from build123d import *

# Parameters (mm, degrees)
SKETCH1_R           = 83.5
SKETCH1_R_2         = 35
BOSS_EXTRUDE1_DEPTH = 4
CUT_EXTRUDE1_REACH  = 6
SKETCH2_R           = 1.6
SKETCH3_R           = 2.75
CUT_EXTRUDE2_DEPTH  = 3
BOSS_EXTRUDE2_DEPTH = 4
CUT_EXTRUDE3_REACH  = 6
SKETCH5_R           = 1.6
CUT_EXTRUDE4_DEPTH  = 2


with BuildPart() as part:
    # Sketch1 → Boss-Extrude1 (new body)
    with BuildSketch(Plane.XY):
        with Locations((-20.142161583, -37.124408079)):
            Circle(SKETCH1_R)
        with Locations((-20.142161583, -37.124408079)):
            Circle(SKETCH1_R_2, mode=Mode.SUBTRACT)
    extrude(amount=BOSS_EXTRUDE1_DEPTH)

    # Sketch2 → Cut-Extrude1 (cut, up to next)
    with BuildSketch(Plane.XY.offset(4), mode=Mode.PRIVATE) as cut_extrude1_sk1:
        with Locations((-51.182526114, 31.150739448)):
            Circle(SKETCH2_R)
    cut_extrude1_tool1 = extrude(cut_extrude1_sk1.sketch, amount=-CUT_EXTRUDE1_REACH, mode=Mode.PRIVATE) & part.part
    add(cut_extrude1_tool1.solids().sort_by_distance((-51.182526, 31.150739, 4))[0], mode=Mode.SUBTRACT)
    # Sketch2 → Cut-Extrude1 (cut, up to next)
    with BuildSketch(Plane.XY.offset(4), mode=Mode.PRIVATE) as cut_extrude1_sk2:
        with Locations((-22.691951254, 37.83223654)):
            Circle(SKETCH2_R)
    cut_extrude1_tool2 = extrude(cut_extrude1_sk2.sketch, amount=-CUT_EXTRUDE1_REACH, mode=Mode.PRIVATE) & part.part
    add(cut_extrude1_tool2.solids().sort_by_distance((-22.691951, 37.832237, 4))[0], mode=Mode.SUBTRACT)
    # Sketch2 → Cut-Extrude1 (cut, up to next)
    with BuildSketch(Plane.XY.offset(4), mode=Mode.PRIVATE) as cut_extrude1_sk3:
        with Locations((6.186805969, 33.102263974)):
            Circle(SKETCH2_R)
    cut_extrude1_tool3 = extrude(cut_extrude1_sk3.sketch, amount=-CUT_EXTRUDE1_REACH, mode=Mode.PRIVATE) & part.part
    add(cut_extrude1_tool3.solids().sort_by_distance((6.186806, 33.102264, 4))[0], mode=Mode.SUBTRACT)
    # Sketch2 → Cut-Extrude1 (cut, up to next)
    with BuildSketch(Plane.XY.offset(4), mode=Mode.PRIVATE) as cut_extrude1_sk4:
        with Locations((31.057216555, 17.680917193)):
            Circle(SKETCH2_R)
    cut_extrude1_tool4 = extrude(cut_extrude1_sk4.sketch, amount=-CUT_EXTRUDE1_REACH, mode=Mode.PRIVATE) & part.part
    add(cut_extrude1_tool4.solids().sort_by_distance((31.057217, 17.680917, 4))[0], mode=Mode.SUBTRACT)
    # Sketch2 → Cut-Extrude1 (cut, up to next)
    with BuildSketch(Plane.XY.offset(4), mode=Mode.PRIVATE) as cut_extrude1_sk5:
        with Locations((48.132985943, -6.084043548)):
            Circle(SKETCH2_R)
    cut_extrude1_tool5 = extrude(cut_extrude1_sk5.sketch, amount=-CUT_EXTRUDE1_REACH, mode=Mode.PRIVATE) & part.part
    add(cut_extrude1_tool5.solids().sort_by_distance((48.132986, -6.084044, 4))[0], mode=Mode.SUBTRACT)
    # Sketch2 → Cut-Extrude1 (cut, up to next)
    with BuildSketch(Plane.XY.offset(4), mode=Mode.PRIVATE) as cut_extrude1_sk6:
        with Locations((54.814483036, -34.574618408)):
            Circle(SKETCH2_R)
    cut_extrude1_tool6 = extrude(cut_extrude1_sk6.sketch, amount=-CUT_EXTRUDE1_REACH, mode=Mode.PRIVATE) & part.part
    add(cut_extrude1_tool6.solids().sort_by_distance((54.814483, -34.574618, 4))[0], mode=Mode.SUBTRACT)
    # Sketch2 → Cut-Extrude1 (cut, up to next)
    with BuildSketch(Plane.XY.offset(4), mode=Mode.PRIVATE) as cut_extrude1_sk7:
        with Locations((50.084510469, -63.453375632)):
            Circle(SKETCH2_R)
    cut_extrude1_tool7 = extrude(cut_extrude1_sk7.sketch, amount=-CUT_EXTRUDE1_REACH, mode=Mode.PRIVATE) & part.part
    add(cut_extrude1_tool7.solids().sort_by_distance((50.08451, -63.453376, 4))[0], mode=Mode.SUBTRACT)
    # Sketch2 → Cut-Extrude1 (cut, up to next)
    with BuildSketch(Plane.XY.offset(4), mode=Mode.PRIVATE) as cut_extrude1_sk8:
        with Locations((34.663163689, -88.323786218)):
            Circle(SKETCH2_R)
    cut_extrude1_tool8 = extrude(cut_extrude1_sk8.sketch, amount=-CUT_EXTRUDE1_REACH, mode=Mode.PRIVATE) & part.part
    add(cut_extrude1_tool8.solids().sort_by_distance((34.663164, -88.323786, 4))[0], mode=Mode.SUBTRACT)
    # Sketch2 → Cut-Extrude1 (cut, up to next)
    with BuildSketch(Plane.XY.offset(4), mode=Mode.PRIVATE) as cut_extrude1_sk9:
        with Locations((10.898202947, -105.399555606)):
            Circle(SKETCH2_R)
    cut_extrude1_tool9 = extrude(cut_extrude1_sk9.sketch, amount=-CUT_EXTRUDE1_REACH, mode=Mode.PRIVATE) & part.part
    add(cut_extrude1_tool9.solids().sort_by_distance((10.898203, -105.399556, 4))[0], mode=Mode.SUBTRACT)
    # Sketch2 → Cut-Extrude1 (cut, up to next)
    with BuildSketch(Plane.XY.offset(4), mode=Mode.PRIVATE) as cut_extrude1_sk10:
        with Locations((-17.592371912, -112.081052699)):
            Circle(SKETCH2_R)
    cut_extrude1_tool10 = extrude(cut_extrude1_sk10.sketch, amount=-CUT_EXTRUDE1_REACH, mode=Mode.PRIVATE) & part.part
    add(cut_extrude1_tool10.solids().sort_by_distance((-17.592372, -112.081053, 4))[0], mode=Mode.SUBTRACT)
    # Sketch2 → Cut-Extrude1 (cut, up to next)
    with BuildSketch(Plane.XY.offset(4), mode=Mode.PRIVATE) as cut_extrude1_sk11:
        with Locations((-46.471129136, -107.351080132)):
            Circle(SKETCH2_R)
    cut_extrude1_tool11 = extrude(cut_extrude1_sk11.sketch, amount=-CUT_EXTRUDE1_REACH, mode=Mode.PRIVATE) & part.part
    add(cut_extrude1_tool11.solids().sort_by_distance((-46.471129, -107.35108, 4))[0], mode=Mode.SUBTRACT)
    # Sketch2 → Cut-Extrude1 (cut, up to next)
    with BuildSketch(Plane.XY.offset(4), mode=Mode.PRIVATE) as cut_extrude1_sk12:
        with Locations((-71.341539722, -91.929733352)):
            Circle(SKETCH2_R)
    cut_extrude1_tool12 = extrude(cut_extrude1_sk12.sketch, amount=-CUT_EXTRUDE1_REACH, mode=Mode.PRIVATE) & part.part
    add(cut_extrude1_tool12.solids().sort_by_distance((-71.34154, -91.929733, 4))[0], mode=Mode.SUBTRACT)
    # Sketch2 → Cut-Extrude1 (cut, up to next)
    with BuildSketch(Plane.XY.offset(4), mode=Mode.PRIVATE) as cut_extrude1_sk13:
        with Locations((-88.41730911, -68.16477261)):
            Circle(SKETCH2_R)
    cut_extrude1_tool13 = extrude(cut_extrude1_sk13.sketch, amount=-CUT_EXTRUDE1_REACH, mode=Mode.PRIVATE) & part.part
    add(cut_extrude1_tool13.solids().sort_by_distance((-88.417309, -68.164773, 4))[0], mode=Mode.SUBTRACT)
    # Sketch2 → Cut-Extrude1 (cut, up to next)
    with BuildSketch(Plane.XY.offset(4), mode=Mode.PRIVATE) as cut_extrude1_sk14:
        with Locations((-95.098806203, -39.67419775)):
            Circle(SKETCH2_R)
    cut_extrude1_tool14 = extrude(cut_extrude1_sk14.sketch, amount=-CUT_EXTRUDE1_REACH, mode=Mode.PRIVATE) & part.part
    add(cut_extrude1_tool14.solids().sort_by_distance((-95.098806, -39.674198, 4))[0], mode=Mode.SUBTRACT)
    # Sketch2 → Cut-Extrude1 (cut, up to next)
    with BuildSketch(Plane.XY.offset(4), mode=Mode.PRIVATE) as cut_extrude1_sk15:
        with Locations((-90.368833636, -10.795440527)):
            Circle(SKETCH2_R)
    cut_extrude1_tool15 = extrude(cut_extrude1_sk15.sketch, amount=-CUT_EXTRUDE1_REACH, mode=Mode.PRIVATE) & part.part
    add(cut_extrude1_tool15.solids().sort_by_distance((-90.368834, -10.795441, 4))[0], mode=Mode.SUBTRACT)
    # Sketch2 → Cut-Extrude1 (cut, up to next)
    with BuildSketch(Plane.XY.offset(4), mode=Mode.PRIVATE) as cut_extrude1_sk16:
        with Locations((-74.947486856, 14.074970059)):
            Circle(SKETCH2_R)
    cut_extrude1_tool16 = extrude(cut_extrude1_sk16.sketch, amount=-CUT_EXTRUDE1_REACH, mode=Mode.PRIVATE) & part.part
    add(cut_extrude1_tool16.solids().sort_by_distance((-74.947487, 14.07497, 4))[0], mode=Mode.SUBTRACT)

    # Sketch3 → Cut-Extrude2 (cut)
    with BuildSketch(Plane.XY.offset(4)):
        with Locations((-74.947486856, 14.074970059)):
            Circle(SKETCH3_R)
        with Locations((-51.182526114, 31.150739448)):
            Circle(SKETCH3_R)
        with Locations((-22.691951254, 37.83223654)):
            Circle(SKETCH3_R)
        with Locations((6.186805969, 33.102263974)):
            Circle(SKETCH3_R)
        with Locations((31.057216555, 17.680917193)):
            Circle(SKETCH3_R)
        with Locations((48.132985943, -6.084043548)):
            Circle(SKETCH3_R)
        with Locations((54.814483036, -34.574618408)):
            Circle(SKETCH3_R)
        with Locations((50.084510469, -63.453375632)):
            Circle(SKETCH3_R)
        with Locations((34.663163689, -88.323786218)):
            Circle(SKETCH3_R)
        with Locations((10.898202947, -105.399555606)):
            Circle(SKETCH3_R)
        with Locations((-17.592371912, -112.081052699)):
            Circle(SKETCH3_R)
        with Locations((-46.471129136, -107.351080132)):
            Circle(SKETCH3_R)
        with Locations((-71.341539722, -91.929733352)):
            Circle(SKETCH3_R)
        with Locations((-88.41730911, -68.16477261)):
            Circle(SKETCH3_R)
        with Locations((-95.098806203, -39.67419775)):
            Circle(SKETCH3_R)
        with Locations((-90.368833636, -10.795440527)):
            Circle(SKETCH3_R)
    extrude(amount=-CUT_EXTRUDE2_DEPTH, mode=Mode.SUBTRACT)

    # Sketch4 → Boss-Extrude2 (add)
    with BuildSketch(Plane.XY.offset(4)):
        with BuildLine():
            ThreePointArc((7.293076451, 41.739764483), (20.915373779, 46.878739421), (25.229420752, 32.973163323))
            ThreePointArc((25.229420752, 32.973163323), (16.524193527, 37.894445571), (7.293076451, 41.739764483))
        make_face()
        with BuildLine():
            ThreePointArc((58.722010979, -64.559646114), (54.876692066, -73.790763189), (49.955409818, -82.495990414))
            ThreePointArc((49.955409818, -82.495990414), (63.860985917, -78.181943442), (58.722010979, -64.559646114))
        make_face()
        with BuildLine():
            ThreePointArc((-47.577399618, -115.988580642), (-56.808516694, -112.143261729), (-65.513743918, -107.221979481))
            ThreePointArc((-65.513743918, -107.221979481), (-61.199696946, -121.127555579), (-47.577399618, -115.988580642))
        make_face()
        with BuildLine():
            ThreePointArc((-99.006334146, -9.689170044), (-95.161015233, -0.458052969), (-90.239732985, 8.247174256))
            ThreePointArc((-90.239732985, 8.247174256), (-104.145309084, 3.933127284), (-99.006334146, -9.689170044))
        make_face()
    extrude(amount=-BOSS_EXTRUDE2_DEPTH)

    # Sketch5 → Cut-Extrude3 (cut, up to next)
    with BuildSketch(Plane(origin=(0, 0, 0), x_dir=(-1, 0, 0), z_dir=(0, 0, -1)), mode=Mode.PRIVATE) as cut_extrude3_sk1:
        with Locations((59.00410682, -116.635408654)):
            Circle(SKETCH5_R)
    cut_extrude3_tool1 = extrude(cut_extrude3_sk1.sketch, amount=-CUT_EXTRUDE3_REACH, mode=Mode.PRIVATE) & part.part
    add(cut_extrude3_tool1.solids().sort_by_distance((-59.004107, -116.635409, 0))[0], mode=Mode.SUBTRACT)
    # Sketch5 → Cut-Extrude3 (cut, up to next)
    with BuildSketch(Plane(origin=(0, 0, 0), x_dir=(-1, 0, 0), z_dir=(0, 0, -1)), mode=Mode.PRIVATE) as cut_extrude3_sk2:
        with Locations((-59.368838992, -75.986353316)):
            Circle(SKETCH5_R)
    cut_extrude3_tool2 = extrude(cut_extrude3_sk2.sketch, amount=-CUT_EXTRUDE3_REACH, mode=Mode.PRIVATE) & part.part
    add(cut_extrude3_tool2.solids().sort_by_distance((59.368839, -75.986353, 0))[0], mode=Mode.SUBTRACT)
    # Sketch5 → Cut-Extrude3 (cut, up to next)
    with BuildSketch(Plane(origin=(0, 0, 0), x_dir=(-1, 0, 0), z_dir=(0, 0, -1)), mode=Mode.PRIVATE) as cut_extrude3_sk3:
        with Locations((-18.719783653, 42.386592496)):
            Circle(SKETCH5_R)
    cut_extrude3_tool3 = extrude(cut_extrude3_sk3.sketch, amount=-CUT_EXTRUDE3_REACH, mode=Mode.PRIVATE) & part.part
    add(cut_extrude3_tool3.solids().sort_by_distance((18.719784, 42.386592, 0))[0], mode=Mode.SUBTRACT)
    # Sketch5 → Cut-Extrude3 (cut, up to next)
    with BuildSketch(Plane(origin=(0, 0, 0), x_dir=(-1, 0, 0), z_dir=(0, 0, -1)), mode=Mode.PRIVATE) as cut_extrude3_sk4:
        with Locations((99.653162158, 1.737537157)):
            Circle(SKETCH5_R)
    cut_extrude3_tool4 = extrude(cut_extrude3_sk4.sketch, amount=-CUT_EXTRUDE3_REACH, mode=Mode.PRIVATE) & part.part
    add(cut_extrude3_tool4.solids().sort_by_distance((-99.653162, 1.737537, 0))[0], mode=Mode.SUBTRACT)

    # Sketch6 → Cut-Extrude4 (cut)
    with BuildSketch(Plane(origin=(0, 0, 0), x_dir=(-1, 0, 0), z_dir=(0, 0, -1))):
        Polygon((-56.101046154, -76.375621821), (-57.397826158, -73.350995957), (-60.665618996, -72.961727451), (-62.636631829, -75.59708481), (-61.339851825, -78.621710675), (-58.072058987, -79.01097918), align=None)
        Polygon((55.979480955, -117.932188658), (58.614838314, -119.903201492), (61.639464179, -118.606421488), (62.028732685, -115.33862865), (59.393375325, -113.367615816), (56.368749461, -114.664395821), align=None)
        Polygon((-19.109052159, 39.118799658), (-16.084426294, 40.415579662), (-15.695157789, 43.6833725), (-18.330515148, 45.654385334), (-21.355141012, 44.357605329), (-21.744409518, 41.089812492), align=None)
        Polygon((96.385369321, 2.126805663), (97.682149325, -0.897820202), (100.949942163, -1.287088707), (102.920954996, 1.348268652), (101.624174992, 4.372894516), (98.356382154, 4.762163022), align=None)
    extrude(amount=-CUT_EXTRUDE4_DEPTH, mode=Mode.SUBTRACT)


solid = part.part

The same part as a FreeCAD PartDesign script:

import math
import FreeCAD as App
import Part
import Sketcher

V = App.Vector

doc = App.newDocument("Part")
params = doc.addObject("Spreadsheet::Sheet", "Params")
for row, (alias, value) in enumerate([
    ("sketch1_diameter", "167 mm"),
    ("sketch1_diameter2", "70 mm"),
    ("pad1_length", "4 mm"),
    ("sketch2_diameter", "3.2 mm"),
    ("sketch3_diameter", "3.2 mm"),
    ("sketch4_diameter", "3.2 mm"),
    ("sketch5_diameter", "3.2 mm"),
    ("sketch6_diameter", "3.2 mm"),
    ("sketch7_diameter", "3.2 mm"),
    ("sketch8_diameter", "3.2 mm"),
    ("sketch9_diameter", "3.2 mm"),
    ("sketch10_diameter", "3.2 mm"),
    ("sketch11_diameter", "3.2 mm"),
    ("sketch12_diameter", "3.2 mm"),
    ("sketch13_diameter", "3.2 mm"),
    ("sketch14_diameter", "3.2 mm"),
    ("sketch15_diameter", "3.2 mm"),
    ("sketch16_diameter", "3.2 mm"),
    ("sketch17_diameter", "3.2 mm"),
    ("sketch18_diameter", "5.5 mm"),
    ("pocket17_length", "3 mm"),
    ("sketch19_radius", "10 mm"),
    ("sketch19_radius2", "83.5 mm"),
    ("pad2_length", "4 mm"),
    ("sketch20_diameter", "3.2 mm"),
    ("sketch21_diameter", "3.2 mm"),
    ("sketch22_diameter", "3.2 mm"),
    ("sketch23_diameter", "3.2 mm"),
    ("pocket22_length", "2 mm"),
], start=1):
    params.set(f"A{row}", alias)
    params.set(f"B{row}", "=" + value)
    params.setAlias(f"B{row}", alias)

body = doc.addObject("PartDesign::Body", "Body")

# Sketch on XY plane
sketch1 = body.newObject("Sketcher::SketchObject", "Sketch")
sketch1.AttachmentSupport = (doc.getObject("XY_Plane"), [""])
sketch1.MapMode = "FlatFace"
sketch1.addGeometry([
    Part.Circle(V(-20, -37, 0), V(0, 0, 1), 84),
    Part.Circle(V(-20, -37, 0), V(0, 0, 1), 35),
], False)
sketch1.addConstraint([
    Sketcher.Constraint("Coincident", 1, 3, 0, 3),
    Sketcher.Constraint("Diameter", 0, 167.0),
    Sketcher.Constraint("Diameter", 1, 70.0),
    Sketcher.Constraint("DistanceX", 0, 3, -1, 1, 20.142162),
    Sketcher.Constraint("DistanceY", 0, 3, -1, 1, 37.124408),
])
sketch1.setExpression("Constraints[1]", "Params.sketch1_diameter")
sketch1.setExpression("Constraints[2]", "Params.sketch1_diameter2")
pad1 = body.newObject("PartDesign::Pad", "Pad")
pad1.Profile = sketch1
pad1.setExpression("Length", "Params.pad1_length")

# Sketch on XY plane
sketch2 = body.newObject("Sketcher::SketchObject", "Sketch001")
sketch2.AttachmentSupport = (doc.getObject("XY_Plane"), [""])
sketch2.MapMode = "FlatFace"
sketch2.AttachmentOffset = App.Placement(V(0, 0, 4), App.Rotation())
sketch2.addGeometry(Part.Circle(V(-51.2, 31.2, 0), V(0, 0, 1), 1.6), False)
sketch2.addConstraint([
    Sketcher.Constraint("Diameter", 0, 3.2),
    Sketcher.Constraint("DistanceY", -1, 1, 0, 3, 31.150739),
    Sketcher.Constraint("DistanceX", 0, 3, -1, 1, 51.182526),
])
sketch2.setExpression("Constraints[0]", "Params.sketch2_diameter")
pocket1 = body.newObject("PartDesign::Pocket", "Pocket")
pocket1.Profile = sketch2
pocket1.Type = "UpToFirst"

# Sketch on XY plane
sketch3 = body.newObject("Sketcher::SketchObject", "Sketch002")
sketch3.AttachmentSupport = (doc.getObject("XY_Plane"), [""])
sketch3.MapMode = "FlatFace"
sketch3.AttachmentOffset = App.Placement(V(0, 0, 4), App.Rotation())
sketch3.addGeometry(Part.Circle(V(-22.7, 37.8, 0), V(0, 0, 1), 1.6), False)
sketch3.addConstraint([
    Sketcher.Constraint("Diameter", 0, 3.2),
    Sketcher.Constraint("DistanceX", 0, 3, -1, 1, 22.691951),
    Sketcher.Constraint("DistanceY", -1, 1, 0, 3, 37.832237),
])
sketch3.setExpression("Constraints[0]", "Params.sketch3_diameter")
pocket2 = body.newObject("PartDesign::Pocket", "Pocket001")
pocket2.Profile = sketch3
pocket2.Type = "UpToFirst"

# Sketch on XY plane
sketch4 = body.newObject("Sketcher::SketchObject", "Sketch003")
sketch4.AttachmentSupport = (doc.getObject("XY_Plane"), [""])
sketch4.MapMode = "FlatFace"
sketch4.AttachmentOffset = App.Placement(V(0, 0, 4), App.Rotation())
sketch4.addGeometry(Part.Circle(V(6.2, 33.1, 0), V(0, 0, 1), 1.6), False)
sketch4.addConstraint([
    Sketcher.Constraint("Diameter", 0, 3.2),
    Sketcher.Constraint("DistanceX", -1, 1, 0, 3, 6.186806),
    Sketcher.Constraint("DistanceY", -1, 1, 0, 3, 33.102264),
])
sketch4.setExpression("Constraints[0]", "Params.sketch4_diameter")
pocket3 = body.newObject("PartDesign::Pocket", "Pocket002")
pocket3.Profile = sketch4
pocket3.Type = "UpToFirst"

# Sketch on XY plane
sketch5 = body.newObject("Sketcher::SketchObject", "Sketch004")
sketch5.AttachmentSupport = (doc.getObject("XY_Plane"), [""])
sketch5.MapMode = "FlatFace"
sketch5.AttachmentOffset = App.Placement(V(0, 0, 4), App.Rotation())
sketch5.addGeometry(Part.Circle(V(31.1, 17.7, 0), V(0, 0, 1), 1.6), False)
sketch5.addConstraint([
    Sketcher.Constraint("Diameter", 0, 3.2),
    Sketcher.Constraint("DistanceX", -1, 1, 0, 3, 31.057217),
    Sketcher.Constraint("DistanceY", -1, 1, 0, 3, 17.680917),
])
sketch5.setExpression("Constraints[0]", "Params.sketch5_diameter")
pocket4 = body.newObject("PartDesign::Pocket", "Pocket003")
pocket4.Profile = sketch5
pocket4.Type = "UpToFirst"

# Sketch on XY plane
sketch6 = body.newObject("Sketcher::SketchObject", "Sketch005")
sketch6.AttachmentSupport = (doc.getObject("XY_Plane"), [""])
sketch6.MapMode = "FlatFace"
sketch6.AttachmentOffset = App.Placement(V(0, 0, 4), App.Rotation())
sketch6.addGeometry(Part.Circle(V(48.1, -6.1, 0), V(0, 0, 1), 1.6), False)
sketch6.addConstraint([
    Sketcher.Constraint("Diameter", 0, 3.2),
    Sketcher.Constraint("DistanceX", -1, 1, 0, 3, 48.132986),
    Sketcher.Constraint("DistanceY", 0, 3, -1, 1, 6.084044),
])
sketch6.setExpression("Constraints[0]", "Params.sketch6_diameter")
pocket5 = body.newObject("PartDesign::Pocket", "Pocket004")
pocket5.Profile = sketch6
pocket5.Type = "UpToFirst"

# Sketch on XY plane
sketch7 = body.newObject("Sketcher::SketchObject", "Sketch006")
sketch7.AttachmentSupport = (doc.getObject("XY_Plane"), [""])
sketch7.MapMode = "FlatFace"
sketch7.AttachmentOffset = App.Placement(V(0, 0, 4), App.Rotation())
sketch7.addGeometry(Part.Circle(V(54.8, -34.6, 0), V(0, 0, 1), 1.6), False)
sketch7.addConstraint([
    Sketcher.Constraint("Diameter", 0, 3.2),
    Sketcher.Constraint("DistanceY", 0, 3, -1, 1, 34.574618),
    Sketcher.Constraint("DistanceX", -1, 1, 0, 3, 54.814483),
])
sketch7.setExpression("Constraints[0]", "Params.sketch7_diameter")
pocket6 = body.newObject("PartDesign::Pocket", "Pocket005")
pocket6.Profile = sketch7
pocket6.Type = "UpToFirst"

# Sketch on XY plane
sketch8 = body.newObject("Sketcher::SketchObject", "Sketch007")
sketch8.AttachmentSupport = (doc.getObject("XY_Plane"), [""])
sketch8.MapMode = "FlatFace"
sketch8.AttachmentOffset = App.Placement(V(0, 0, 4), App.Rotation())
sketch8.addGeometry(Part.Circle(V(50.1, -63.5, 0), V(0, 0, 1), 1.6), False)
sketch8.addConstraint([
    Sketcher.Constraint("Diameter", 0, 3.2),
    Sketcher.Constraint("DistanceX", -1, 1, 0, 3, 50.08451),
    Sketcher.Constraint("DistanceY", 0, 3, -1, 1, 63.453376),
])
sketch8.setExpression("Constraints[0]", "Params.sketch8_diameter")
pocket7 = body.newObject("PartDesign::Pocket", "Pocket006")
pocket7.Profile = sketch8
pocket7.Type = "UpToFirst"

# Sketch on XY plane
sketch9 = body.newObject("Sketcher::SketchObject", "Sketch008")
sketch9.AttachmentSupport = (doc.getObject("XY_Plane"), [""])
sketch9.MapMode = "FlatFace"
sketch9.AttachmentOffset = App.Placement(V(0, 0, 4), App.Rotation())
sketch9.addGeometry(Part.Circle(V(34.7, -88.3, 0), V(0, 0, 1), 1.6), False)
sketch9.addConstraint([
    Sketcher.Constraint("Diameter", 0, 3.2),
    Sketcher.Constraint("DistanceX", -1, 1, 0, 3, 34.663164),
    Sketcher.Constraint("DistanceY", 0, 3, -1, 1, 88.323786),
])
sketch9.setExpression("Constraints[0]", "Params.sketch9_diameter")
pocket8 = body.newObject("PartDesign::Pocket", "Pocket007")
pocket8.Profile = sketch9
pocket8.Type = "UpToFirst"

# Sketch on XY plane
sketch10 = body.newObject("Sketcher::SketchObject", "Sketch009")
sketch10.AttachmentSupport = (doc.getObject("XY_Plane"), [""])
sketch10.MapMode = "FlatFace"
sketch10.AttachmentOffset = App.Placement(V(0, 0, 4), App.Rotation())
sketch10.addGeometry(Part.Circle(V(10.9, -105.4, 0), V(0, 0, 1), 1.6), False)
sketch10.addConstraint([
    Sketcher.Constraint("Diameter", 0, 3.2),
    Sketcher.Constraint("DistanceX", -1, 1, 0, 3, 10.898203),
    Sketcher.Constraint("DistanceY", 0, 3, -1, 1, 105.399556),
])
sketch10.setExpression("Constraints[0]", "Params.sketch10_diameter")
pocket9 = body.newObject("PartDesign::Pocket", "Pocket008")
pocket9.Profile = sketch10
pocket9.Type = "UpToFirst"

# Sketch on XY plane
sketch11 = body.newObject("Sketcher::SketchObject", "Sketch010")
sketch11.AttachmentSupport = (doc.getObject("XY_Plane"), [""])
sketch11.MapMode = "FlatFace"
sketch11.AttachmentOffset = App.Placement(V(0, 0, 4), App.Rotation())
sketch11.addGeometry(Part.Circle(V(-17.6, -112.1, 0), V(0, 0, 1), 1.6), False)
sketch11.addConstraint([
    Sketcher.Constraint("Diameter", 0, 3.2),
    Sketcher.Constraint("DistanceX", 0, 3, -1, 1, 17.592372),
    Sketcher.Constraint("DistanceY", 0, 3, -1, 1, 112.081053),
])
sketch11.setExpression("Constraints[0]", "Params.sketch11_diameter")
pocket10 = body.newObject("PartDesign::Pocket", "Pocket009")
pocket10.Profile = sketch11
pocket10.Type = "UpToFirst"

# Sketch on XY plane
sketch12 = body.newObject("Sketcher::SketchObject", "Sketch011")
sketch12.AttachmentSupport = (doc.getObject("XY_Plane"), [""])
sketch12.MapMode = "FlatFace"
sketch12.AttachmentOffset = App.Placement(V(0, 0, 4), App.Rotation())
sketch12.addGeometry(Part.Circle(V(-46.5, -107.4, 0), V(0, 0, 1), 1.6), False)
sketch12.addConstraint([
    Sketcher.Constraint("Diameter", 0, 3.2),
    Sketcher.Constraint("DistanceX", 0, 3, -1, 1, 46.471129),
    Sketcher.Constraint("DistanceY", 0, 3, -1, 1, 107.35108),
])
sketch12.setExpression("Constraints[0]", "Params.sketch12_diameter")
pocket11 = body.newObject("PartDesign::Pocket", "Pocket010")
pocket11.Profile = sketch12
pocket11.Type = "UpToFirst"

# Sketch on XY plane
sketch13 = body.newObject("Sketcher::SketchObject", "Sketch012")
sketch13.AttachmentSupport = (doc.getObject("XY_Plane"), [""])
sketch13.MapMode = "FlatFace"
sketch13.AttachmentOffset = App.Placement(V(0, 0, 4), App.Rotation())
sketch13.addGeometry(Part.Circle(V(-71.3, -91.9, 0), V(0, 0, 1), 1.6), False)
sketch13.addConstraint([
    Sketcher.Constraint("Diameter", 0, 3.2),
    Sketcher.Constraint("DistanceX", 0, 3, -1, 1, 71.34154),
    Sketcher.Constraint("DistanceY", 0, 3, -1, 1, 91.929733),
])
sketch13.setExpression("Constraints[0]", "Params.sketch13_diameter")
pocket12 = body.newObject("PartDesign::Pocket", "Pocket011")
pocket12.Profile = sketch13
pocket12.Type = "UpToFirst"

# Sketch on XY plane
sketch14 = body.newObject("Sketcher::SketchObject", "Sketch013")
sketch14.AttachmentSupport = (doc.getObject("XY_Plane"), [""])
sketch14.MapMode = "FlatFace"
sketch14.AttachmentOffset = App.Placement(V(0, 0, 4), App.Rotation())
sketch14.addGeometry(Part.Circle(V(-88.4, -68.2, 0), V(0, 0, 1), 1.6), False)
sketch14.addConstraint([
    Sketcher.Constraint("Diameter", 0, 3.2),
    Sketcher.Constraint("DistanceX", 0, 3, -1, 1, 88.417309),
    Sketcher.Constraint("DistanceY", 0, 3, -1, 1, 68.164773),
])
sketch14.setExpression("Constraints[0]", "Params.sketch14_diameter")
pocket13 = body.newObject("PartDesign::Pocket", "Pocket012")
pocket13.Profile = sketch14
pocket13.Type = "UpToFirst"

# Sketch on XY plane
sketch15 = body.newObject("Sketcher::SketchObject", "Sketch014")
sketch15.AttachmentSupport = (doc.getObject("XY_Plane"), [""])
sketch15.MapMode = "FlatFace"
sketch15.AttachmentOffset = App.Placement(V(0, 0, 4), App.Rotation())
sketch15.addGeometry(Part.Circle(V(-95.1, -39.7, 0), V(0, 0, 1), 1.6), False)
sketch15.addConstraint([
    Sketcher.Constraint("Diameter", 0, 3.2),
    Sketcher.Constraint("DistanceX", 0, 3, -1, 1, 95.098806),
    Sketcher.Constraint("DistanceY", 0, 3, -1, 1, 39.674198),
])
sketch15.setExpression("Constraints[0]", "Params.sketch15_diameter")
pocket14 = body.newObject("PartDesign::Pocket", "Pocket013")
pocket14.Profile = sketch15
pocket14.Type = "UpToFirst"

# Sketch on XY plane
sketch16 = body.newObject("Sketcher::SketchObject", "Sketch015")
sketch16.AttachmentSupport = (doc.getObject("XY_Plane"), [""])
sketch16.MapMode = "FlatFace"
sketch16.AttachmentOffset = App.Placement(V(0, 0, 4), App.Rotation())
sketch16.addGeometry(Part.Circle(V(-90.4, -10.8, 0), V(0, 0, 1), 1.6), False)
sketch16.addConstraint([
    Sketcher.Constraint("Diameter", 0, 3.2),
    Sketcher.Constraint("DistanceY", 0, 3, -1, 1, 10.795441),
    Sketcher.Constraint("DistanceX", 0, 3, -1, 1, 90.368834),
])
sketch16.setExpression("Constraints[0]", "Params.sketch16_diameter")
pocket15 = body.newObject("PartDesign::Pocket", "Pocket014")
pocket15.Profile = sketch16
pocket15.Type = "UpToFirst"

# Sketch on XY plane
sketch17 = body.newObject("Sketcher::SketchObject", "Sketch016")
sketch17.AttachmentSupport = (doc.getObject("XY_Plane"), [""])
sketch17.MapMode = "FlatFace"
sketch17.AttachmentOffset = App.Placement(V(0, 0, 4), App.Rotation())
sketch17.addGeometry(Part.Circle(V(-74.9, 14.1, 0), V(0, 0, 1), 1.6), False)
sketch17.addConstraint([
    Sketcher.Constraint("Diameter", 0, 3.2),
    Sketcher.Constraint("DistanceY", -1, 1, 0, 3, 14.07497),
    Sketcher.Constraint("DistanceX", 0, 3, -1, 1, 74.947487),
])
sketch17.setExpression("Constraints[0]", "Params.sketch17_diameter")
pocket16 = body.newObject("PartDesign::Pocket", "Pocket015")
pocket16.Profile = sketch17
pocket16.Type = "UpToFirst"

# Sketch on XY plane
sketch18 = body.newObject("Sketcher::SketchObject", "Sketch017")
sketch18.AttachmentSupport = (doc.getObject("XY_Plane"), [""])
sketch18.MapMode = "FlatFace"
sketch18.AttachmentOffset = App.Placement(V(0, 0, 4), App.Rotation())
sketch18.addGeometry([
    Part.Circle(V(-74.9, 14.1, 0), V(0, 0, 1), 2.8),  # 0
    Part.Circle(V(-51.2, 31.2, 0), V(0, 0, 1), 2.8),  # 1
    Part.Circle(V(-22.7, 37.8, 0), V(0, 0, 1), 2.8),  # 2
    Part.Circle(V(6.2, 33.1, 0), V(0, 0, 1), 2.8),  # 3
    Part.Circle(V(31.1, 17.7, 0), V(0, 0, 1), 2.8),  # 4
    Part.Circle(V(48.1, -6.1, 0), V(0, 0, 1), 2.8),  # 5
    Part.Circle(V(54.8, -34.6, 0), V(0, 0, 1), 2.8),  # 6
    Part.Circle(V(50.1, -63.5, 0), V(0, 0, 1), 2.8),  # 7
    Part.Circle(V(34.7, -88.3, 0), V(0, 0, 1), 2.8),  # 8
    Part.Circle(V(10.9, -105.4, 0), V(0, 0, 1), 2.8),  # 9
    Part.Circle(V(-17.6, -112.1, 0), V(0, 0, 1), 2.8),  # 10
    Part.Circle(V(-46.5, -107.4, 0), V(0, 0, 1), 2.8),  # 11
    Part.Circle(V(-71.3, -91.9, 0), V(0, 0, 1), 2.8),  # 12
    Part.Circle(V(-88.4, -68.2, 0), V(0, 0, 1), 2.8),  # 13
    Part.Circle(V(-95.1, -39.7, 0), V(0, 0, 1), 2.8),  # 14
    Part.Circle(V(-90.4, -10.8, 0), V(0, 0, 1), 2.8),  # 15
], False)
sketch18.addConstraint([
    Sketcher.Constraint("Equal", 0, 1),
    Sketcher.Constraint("Equal", 1, 2),
    Sketcher.Constraint("Equal", 2, 3),
    Sketcher.Constraint("Equal", 3, 4),
    Sketcher.Constraint("Equal", 4, 5),
    Sketcher.Constraint("Equal", 5, 6),
    Sketcher.Constraint("Equal", 6, 7),
    Sketcher.Constraint("Equal", 7, 8),
    Sketcher.Constraint("Equal", 8, 9),
    Sketcher.Constraint("Equal", 9, 10),
    Sketcher.Constraint("Equal", 10, 11),
    Sketcher.Constraint("Equal", 11, 12),
    Sketcher.Constraint("Equal", 12, 13),
    Sketcher.Constraint("Equal", 13, 14),
    Sketcher.Constraint("Equal", 14, 15),
    Sketcher.Constraint("Diameter", 0, 5.5),
    Sketcher.Constraint("DistanceY", -1, 1, 0, 3, 14.07497),
    Sketcher.Constraint("DistanceY", -1, 1, 1, 3, 31.150739),
    Sketcher.Constraint("DistanceX", 2, 3, -1, 1, 22.691951),
    Sketcher.Constraint("DistanceY", 6, 3, -1, 1, 34.574618),
    Sketcher.Constraint("DistanceX", -1, 1, 7, 3, 50.08451),
    Sketcher.Constraint("DistanceX", 10, 3, -1, 1, 17.592372),
    Sketcher.Constraint("DistanceX", 11, 3, -1, 1, 46.471129),
    Sketcher.Constraint("DistanceY", 11, 3, -1, 1, 107.35108),
    Sketcher.Constraint("DistanceX", 12, 3, -1, 1, 71.34154),
    Sketcher.Constraint("DistanceX", 13, 3, -1, 1, 88.417309),
    Sketcher.Constraint("DistanceY", 15, 3, -1, 1, 10.795441),
    Sketcher.Constraint("DistanceX", 0, 3, 1, 3, 23.764961),
    Sketcher.Constraint("DistanceX", 3, 3, 4, 3, 24.870411),
    Sketcher.Constraint("DistanceY", 4, 3, 2, 3, 20.151319),
    Sketcher.Constraint("DistanceX", 4, 3, 5, 3, 17.075769),
    Sketcher.Constraint("DistanceY", 5, 3, 4, 3, 23.764961),
    Sketcher.Constraint("DistanceX", 1, 3, 6, 3, 105.997009),
    Sketcher.Constraint("DistanceY", 7, 3, 3, 3, 96.55564),
    Sketcher.Constraint("DistanceY", 8, 3, 7, 3, 24.870411),
    Sketcher.Constraint("DistanceX", 8, 3, 6, 3, 20.151319),
    Sketcher.Constraint("DistanceX", 9, 3, 8, 3, 23.764961),
    Sketcher.Constraint("DistanceY", 9, 3, 8, 3, 17.075769),
    Sketcher.Constraint("DistanceY", 10, 3, 5, 3, 105.997009),
    Sketcher.Constraint("DistanceY", 10, 3, 12, 3, 20.151319),
    Sketcher.Constraint("DistanceY", 12, 3, 13, 3, 23.764961),
    Sketcher.Constraint("DistanceX", 14, 3, 0, 3, 20.151319),
    Sketcher.Constraint("DistanceX", 0, 3, -1, 1, 74.947487),
    Sketcher.Constraint("DistanceY", -1, 1, 2, 3, 37.832237),
    Sketcher.Constraint("DistanceX", -1, 1, 3, 3, 6.186806),
    Sketcher.Constraint("DistanceY", -1, 1, 3, 3, 33.102264),
    Sketcher.Constraint("DistanceY", 14, 3, -1, 1, 39.674198),
    Sketcher.Constraint("DistanceX", 15, 3, -1, 1, 90.368834),
])
sketch18.setExpression("Constraints[15]", "Params.sketch18_diameter")
pocket17 = body.newObject("PartDesign::Pocket", "Pocket016")
pocket17.Profile = sketch18
pocket17.setExpression("Length", "Params.pocket17_length")

# Sketch on XY plane
sketch19 = body.newObject("Sketcher::SketchObject", "Sketch018")
sketch19.AttachmentSupport = (doc.getObject("XY_Plane"), [""])
sketch19.MapMode = "FlatFace"
sketch19.AttachmentOffset = App.Placement(V(0, 0, 4), App.Rotation())
sketch19.addGeometry([
    Part.ArcOfCircle(Part.Circle(V(17, 38, 0), V(0, 0, 1), 10), math.radians(-29), math.radians(157)),  # 0
    Part.ArcOfCircle(Part.Circle(V(-20, -37, 0), V(0, 0, 1), 83), math.radians(57.09), math.radians(70.82)),  # 1
    Part.ArcOfCircle(Part.Circle(V(-20, -37, 0), V(0, 0, 1), 84), math.radians(-32.91), math.radians(-19.18)),  # 2
    Part.ArcOfCircle(Part.Circle(V(55, -74, 0), V(0, 0, 1), 10), math.radians(-119), math.radians(67)),  # 3
    Part.ArcOfCircle(Part.Circle(V(-20, -37, 0), V(0, 0, 1), 83), math.radians(-122.91), math.radians(-109.18)),  # 4
    Part.ArcOfCircle(Part.Circle(V(-57, -112, 0), V(0, 0, 1), 10), math.radians(151), math.radians(337)),  # 5
    Part.ArcOfCircle(Part.Circle(V(-20, -37, 0), V(0, 0, 1), 84), math.radians(147.09), math.radians(160.82)),  # 6
    Part.ArcOfCircle(Part.Circle(V(-95, 0, 0), V(0, 0, 1), 10), math.radians(61), math.radians(247)),  # 7
], False)
sketch19.addConstraint([
    Sketcher.Constraint("Coincident", 0, 1, 1, 1),
    Sketcher.Constraint("Coincident", 1, 2, 0, 2),
    Sketcher.Constraint("Coincident", 2, 1, 3, 1),
    Sketcher.Constraint("Coincident", 3, 2, 2, 2),
    Sketcher.Constraint("Coincident", 4, 1, 5, 1),
    Sketcher.Constraint("Coincident", 5, 2, 4, 2),
    Sketcher.Constraint("Coincident", 6, 1, 7, 1),
    Sketcher.Constraint("Coincident", 7, 2, 6, 2),
    Sketcher.Constraint("Coincident", 2, 3, 1, 3),
    Sketcher.Constraint("Coincident", 4, 3, 1, 3),
    Sketcher.Constraint("Coincident", 6, 3, 1, 3),
    Sketcher.Constraint("Equal", 1, 2),
    Sketcher.Constraint("Equal", 0, 3),
    Sketcher.Constraint("Equal", 2, 4),
    Sketcher.Constraint("Equal", 3, 5),
    Sketcher.Constraint("Equal", 4, 6),
    Sketcher.Constraint("Equal", 5, 7),
    Sketcher.Constraint("Radius", 0, 10.0),
    Sketcher.Constraint("Radius", 1, 83.5),
    Sketcher.Constraint("DistanceX", 5, 2, -1, 1, 47.5774),
    Sketcher.Constraint("DistanceX", 0, 3, 3, 3, 38.352499),
    Sketcher.Constraint("DistanceY", 5, 3, 3, 3, 38.352499),
    Sketcher.Constraint("DistanceY", 7, 3, 0, 3, 38.352499),
    Sketcher.Constraint("DistanceY", 0, 1, 1, 2, 8.766601),
    Sketcher.Constraint("DistanceX", 2, 1, 3, 2, 8.766601),
    Sketcher.Constraint("DistanceY", 5, 2, 4, 1, 8.766601),
    Sketcher.Constraint("DistanceX", 7, 2, 6, 1, 8.766601),
    Sketcher.Constraint("DistanceX", 1, 3, -1, 1, 20.142162),
    Sketcher.Constraint("DistanceY", 1, 3, -1, 1, 37.124408),
])
sketch19.setExpression("Constraints[17]", "Params.sketch19_radius")
sketch19.setExpression("Constraints[18]", "Params.sketch19_radius2")
pad2 = body.newObject("PartDesign::Pad", "Pad001")
pad2.Profile = sketch19
pad2.setExpression("Length", "Params.pad2_length")
pad2.Reversed = True

# Sketch on XY plane
sketch20 = body.newObject("Sketcher::SketchObject", "Sketch019")
sketch20.AttachmentSupport = (doc.getObject("XY_Plane"), [""])
sketch20.MapMode = "FlatFace"
sketch20.addGeometry(Part.Circle(V(-59, -116.6, 0), V(0, 0, 1), 1.6), False)
sketch20.addConstraint([
    Sketcher.Constraint("Diameter", 0, 3.2),
    Sketcher.Constraint("DistanceY", 0, 3, -1, 1, 116.635409),
    Sketcher.Constraint("DistanceX", 0, 3, -1, 1, 59.004107),
])
sketch20.setExpression("Constraints[0]", "Params.sketch20_diameter")
pocket18 = body.newObject("PartDesign::Pocket", "Pocket017")
pocket18.Profile = sketch20
pocket18.Type = "UpToFirst"
pocket18.Reversed = True

# Sketch on XY plane
sketch21 = body.newObject("Sketcher::SketchObject", "Sketch020")
sketch21.AttachmentSupport = (doc.getObject("XY_Plane"), [""])
sketch21.MapMode = "FlatFace"
sketch21.addGeometry(Part.Circle(V(59.4, -76, 0), V(0, 0, 1), 1.6), False)
sketch21.addConstraint([
    Sketcher.Constraint("Diameter", 0, 3.2),
    Sketcher.Constraint("DistanceX", -1, 1, 0, 3, 59.368839),
    Sketcher.Constraint("DistanceY", 0, 3, -1, 1, 75.986353),
])
sketch21.setExpression("Constraints[0]", "Params.sketch21_diameter")
pocket19 = body.newObject("PartDesign::Pocket", "Pocket018")
pocket19.Profile = sketch21
pocket19.Type = "UpToFirst"
pocket19.Reversed = True

# Sketch on XY plane
sketch22 = body.newObject("Sketcher::SketchObject", "Sketch021")
sketch22.AttachmentSupport = (doc.getObject("XY_Plane"), [""])
sketch22.MapMode = "FlatFace"
sketch22.addGeometry(Part.Circle(V(18.7, 42.4, 0), V(0, 0, 1), 1.6), False)
sketch22.addConstraint([
    Sketcher.Constraint("Diameter", 0, 3.2),
    Sketcher.Constraint("DistanceX", -1, 1, 0, 3, 18.719784),
    Sketcher.Constraint("DistanceY", -1, 1, 0, 3, 42.386592),
])
sketch22.setExpression("Constraints[0]", "Params.sketch22_diameter")
pocket20 = body.newObject("PartDesign::Pocket", "Pocket019")
pocket20.Profile = sketch22
pocket20.Type = "UpToFirst"
pocket20.Reversed = True

# Sketch on XY plane
sketch23 = body.newObject("Sketcher::SketchObject", "Sketch022")
sketch23.AttachmentSupport = (doc.getObject("XY_Plane"), [""])
sketch23.MapMode = "FlatFace"
sketch23.addGeometry(Part.Circle(V(-99.7, 1.7, 0), V(0, 0, 1), 1.6), False)
sketch23.addConstraint([
    Sketcher.Constraint("Diameter", 0, 3.2),
    Sketcher.Constraint("DistanceX", 0, 3, -1, 1, 99.653162),
    Sketcher.Constraint("DistanceY", -1, 1, 0, 3, 1.737537),
])
sketch23.setExpression("Constraints[0]", "Params.sketch23_diameter")
pocket21 = body.newObject("PartDesign::Pocket", "Pocket020")
pocket21.Profile = sketch23
pocket21.Type = "UpToFirst"
pocket21.Reversed = True

# Sketch on XY plane
sketch24 = body.newObject("Sketcher::SketchObject", "Sketch023")
sketch24.AttachmentSupport = (doc.getObject("XY_Plane"), [""])
sketch24.MapMode = "FlatFace"
sketch24.addGeometry([
    Part.LineSegment(V(56.1, -76.4, 0), V(57.4, -73.4, 0)),  # 0
    Part.LineSegment(V(57.4, -73.4, 0), V(60.7, -73, 0)),  # 1
    Part.LineSegment(V(60.7, -73, 0), V(62.6, -75.6, 0)),  # 2
    Part.LineSegment(V(62.6, -75.6, 0), V(61.3, -78.6, 0)),  # 3
    Part.LineSegment(V(61.3, -78.6, 0), V(58.1, -79, 0)),  # 4
    Part.LineSegment(V(58.1, -79, 0), V(56.1, -76.4, 0)),  # 5
    Part.LineSegment(V(-56, -117.9, 0), V(-58.6, -119.9, 0)),  # 6
    Part.LineSegment(V(-58.6, -119.9, 0), V(-61.6, -118.6, 0)),  # 7
    Part.LineSegment(V(-61.6, -118.6, 0), V(-62, -115.3, 0)),  # 8
    Part.LineSegment(V(-62, -115.3, 0), V(-59.4, -113.4, 0)),  # 9
    Part.LineSegment(V(-59.4, -113.4, 0), V(-56.4, -114.7, 0)),  # 10
    Part.LineSegment(V(-56.4, -114.7, 0), V(-56, -117.9, 0)),  # 11
    Part.LineSegment(V(19.1, 39.1, 0), V(16.1, 40.4, 0)),  # 12
    Part.LineSegment(V(16.1, 40.4, 0), V(15.7, 43.7, 0)),  # 13
    Part.LineSegment(V(15.7, 43.7, 0), V(18.3, 45.7, 0)),  # 14
    Part.LineSegment(V(18.3, 45.7, 0), V(21.4, 44.4, 0)),  # 15
    Part.LineSegment(V(21.4, 44.4, 0), V(21.7, 41.1, 0)),  # 16
    Part.LineSegment(V(21.7, 41.1, 0), V(19.1, 39.1, 0)),  # 17
    Part.LineSegment(V(-96.4, 2.1, 0), V(-97.7, -0.9, 0)),  # 18
    Part.LineSegment(V(-97.7, -0.9, 0), V(-100.9, -1.3, 0)),  # 19
    Part.LineSegment(V(-100.9, -1.3, 0), V(-102.9, 1.3, 0)),  # 20
    Part.LineSegment(V(-102.9, 1.3, 0), V(-101.6, 4.4, 0)),  # 21
    Part.LineSegment(V(-101.6, 4.4, 0), V(-98.4, 4.8, 0)),  # 22
    Part.LineSegment(V(-98.4, 4.8, 0), V(-96.4, 2.1, 0)),  # 23
], False)
sketch24.addConstraint([
    Sketcher.Constraint("Coincident", 0, 2, 1, 1),
    Sketcher.Constraint("Coincident", 1, 2, 2, 1),
    Sketcher.Constraint("Coincident", 2, 2, 3, 1),
    Sketcher.Constraint("Coincident", 3, 2, 4, 1),
    Sketcher.Constraint("Coincident", 4, 2, 5, 1),
    Sketcher.Constraint("Coincident", 5, 2, 0, 1),
    Sketcher.Constraint("Coincident", 6, 2, 7, 1),
    Sketcher.Constraint("Coincident", 7, 2, 8, 1),
    Sketcher.Constraint("Coincident", 8, 2, 9, 1),
    Sketcher.Constraint("Coincident", 9, 2, 10, 1),
    Sketcher.Constraint("Coincident", 10, 2, 11, 1),
    Sketcher.Constraint("Coincident", 11, 2, 6, 1),
    Sketcher.Constraint("Coincident", 12, 2, 13, 1),
    Sketcher.Constraint("Coincident", 13, 2, 14, 1),
    Sketcher.Constraint("Coincident", 14, 2, 15, 1),
    Sketcher.Constraint("Coincident", 15, 2, 16, 1),
    Sketcher.Constraint("Coincident", 16, 2, 17, 1),
    Sketcher.Constraint("Coincident", 17, 2, 12, 1),
    Sketcher.Constraint("Coincident", 18, 2, 19, 1),
    Sketcher.Constraint("Coincident", 19, 2, 20, 1),
    Sketcher.Constraint("Coincident", 20, 2, 21, 1),
    Sketcher.Constraint("Coincident", 21, 2, 22, 1),
    Sketcher.Constraint("Coincident", 22, 2, 23, 1),
    Sketcher.Constraint("Coincident", 23, 2, 18, 1),
    Sketcher.Constraint("Parallel", 0, 3),
    Sketcher.Constraint("Parallel", 1, 4),
    Sketcher.Constraint("Parallel", 2, 5),
    Sketcher.Constraint("Perpendicular", 5, 6),
    Sketcher.Constraint("Perpendicular", 3, 7),
    Sketcher.Constraint("Perpendicular", 4, 8),
    Sketcher.Constraint("Parallel", 6, 9),
    Sketcher.Constraint("Parallel", 7, 10),
    Sketcher.Constraint("Parallel", 8, 11),
    Sketcher.Constraint("Parallel", 10, 12),
    Sketcher.Constraint("Parallel", 11, 13),
    Sketcher.Constraint("Parallel", 9, 14),
    Sketcher.Constraint("Parallel", 12, 15),
    Sketcher.Constraint("Parallel", 13, 16),
    Sketcher.Constraint("Parallel", 14, 17),
    Sketcher.Constraint("Perpendicular", 15, 18),
    Sketcher.Constraint("Perpendicular", 16, 19),
    Sketcher.Constraint("Perpendicular", 17, 20),
    Sketcher.Constraint("Parallel", 18, 21),
    Sketcher.Constraint("Parallel", 19, 22),
    Sketcher.Constraint("Parallel", 20, 23),
    Sketcher.Constraint("Equal", 0, 1),
    Sketcher.Constraint("Equal", 1, 2),
    Sketcher.Constraint("Equal", 2, 3),
    Sketcher.Constraint("Equal", 5, 6),
    Sketcher.Constraint("Equal", 6, 7),
    Sketcher.Constraint("Equal", 7, 8),
    Sketcher.Constraint("Equal", 8, 9),
    Sketcher.Constraint("Equal", 11, 12),
    Sketcher.Constraint("Equal", 12, 13),
    Sketcher.Constraint("Equal", 13, 14),
    Sketcher.Constraint("Equal", 14, 15),
    Sketcher.Constraint("Equal", 17, 18),
    Sketcher.Constraint("Equal", 18, 19),
    Sketcher.Constraint("Equal", 19, 20),
    Sketcher.Constraint("Equal", 20, 21),
    Sketcher.Constraint("DistanceY", 6, 2, -1, 1, 119.903201),
    Sketcher.Constraint("DistanceY", -1, 1, 17, 2, 39.1188),
    Sketcher.Constraint("DistanceY", 7, 2, 5, 2, 42.2308),
    Sketcher.Constraint("DistanceX", 12, 2, 0, 2, 41.3134),
    Sketcher.Constraint("DistanceY", 1, 2, 13, 2, 116.6451),
    Sketcher.Constraint("DistanceY", 0, 2, 15, 2, 117.708601),
    Sketcher.Constraint("DistanceX", 18, 2, 10, 2, 41.3134),
    Sketcher.Constraint("DistanceY", 18, 2, 12, 2, 41.3134),
    Sketcher.Constraint("DistanceX", 21, 2, 12, 2, 117.708601),
    Sketcher.Constraint("DistanceX", -1, 1, 1, 2, 60.665619),
    Sketcher.Constraint("DistanceX", -1, 1, 2, 2, 62.636632),
    Sketcher.Constraint("DistanceX", -1, 1, 3, 2, 61.339852),
])
pocket22 = body.newObject("PartDesign::Pocket", "Pocket021")
pocket22.Profile = sketch24
pocket22.setExpression("Length", "Params.pocket22_length")
pocket22.Reversed = True

doc.recompute()
